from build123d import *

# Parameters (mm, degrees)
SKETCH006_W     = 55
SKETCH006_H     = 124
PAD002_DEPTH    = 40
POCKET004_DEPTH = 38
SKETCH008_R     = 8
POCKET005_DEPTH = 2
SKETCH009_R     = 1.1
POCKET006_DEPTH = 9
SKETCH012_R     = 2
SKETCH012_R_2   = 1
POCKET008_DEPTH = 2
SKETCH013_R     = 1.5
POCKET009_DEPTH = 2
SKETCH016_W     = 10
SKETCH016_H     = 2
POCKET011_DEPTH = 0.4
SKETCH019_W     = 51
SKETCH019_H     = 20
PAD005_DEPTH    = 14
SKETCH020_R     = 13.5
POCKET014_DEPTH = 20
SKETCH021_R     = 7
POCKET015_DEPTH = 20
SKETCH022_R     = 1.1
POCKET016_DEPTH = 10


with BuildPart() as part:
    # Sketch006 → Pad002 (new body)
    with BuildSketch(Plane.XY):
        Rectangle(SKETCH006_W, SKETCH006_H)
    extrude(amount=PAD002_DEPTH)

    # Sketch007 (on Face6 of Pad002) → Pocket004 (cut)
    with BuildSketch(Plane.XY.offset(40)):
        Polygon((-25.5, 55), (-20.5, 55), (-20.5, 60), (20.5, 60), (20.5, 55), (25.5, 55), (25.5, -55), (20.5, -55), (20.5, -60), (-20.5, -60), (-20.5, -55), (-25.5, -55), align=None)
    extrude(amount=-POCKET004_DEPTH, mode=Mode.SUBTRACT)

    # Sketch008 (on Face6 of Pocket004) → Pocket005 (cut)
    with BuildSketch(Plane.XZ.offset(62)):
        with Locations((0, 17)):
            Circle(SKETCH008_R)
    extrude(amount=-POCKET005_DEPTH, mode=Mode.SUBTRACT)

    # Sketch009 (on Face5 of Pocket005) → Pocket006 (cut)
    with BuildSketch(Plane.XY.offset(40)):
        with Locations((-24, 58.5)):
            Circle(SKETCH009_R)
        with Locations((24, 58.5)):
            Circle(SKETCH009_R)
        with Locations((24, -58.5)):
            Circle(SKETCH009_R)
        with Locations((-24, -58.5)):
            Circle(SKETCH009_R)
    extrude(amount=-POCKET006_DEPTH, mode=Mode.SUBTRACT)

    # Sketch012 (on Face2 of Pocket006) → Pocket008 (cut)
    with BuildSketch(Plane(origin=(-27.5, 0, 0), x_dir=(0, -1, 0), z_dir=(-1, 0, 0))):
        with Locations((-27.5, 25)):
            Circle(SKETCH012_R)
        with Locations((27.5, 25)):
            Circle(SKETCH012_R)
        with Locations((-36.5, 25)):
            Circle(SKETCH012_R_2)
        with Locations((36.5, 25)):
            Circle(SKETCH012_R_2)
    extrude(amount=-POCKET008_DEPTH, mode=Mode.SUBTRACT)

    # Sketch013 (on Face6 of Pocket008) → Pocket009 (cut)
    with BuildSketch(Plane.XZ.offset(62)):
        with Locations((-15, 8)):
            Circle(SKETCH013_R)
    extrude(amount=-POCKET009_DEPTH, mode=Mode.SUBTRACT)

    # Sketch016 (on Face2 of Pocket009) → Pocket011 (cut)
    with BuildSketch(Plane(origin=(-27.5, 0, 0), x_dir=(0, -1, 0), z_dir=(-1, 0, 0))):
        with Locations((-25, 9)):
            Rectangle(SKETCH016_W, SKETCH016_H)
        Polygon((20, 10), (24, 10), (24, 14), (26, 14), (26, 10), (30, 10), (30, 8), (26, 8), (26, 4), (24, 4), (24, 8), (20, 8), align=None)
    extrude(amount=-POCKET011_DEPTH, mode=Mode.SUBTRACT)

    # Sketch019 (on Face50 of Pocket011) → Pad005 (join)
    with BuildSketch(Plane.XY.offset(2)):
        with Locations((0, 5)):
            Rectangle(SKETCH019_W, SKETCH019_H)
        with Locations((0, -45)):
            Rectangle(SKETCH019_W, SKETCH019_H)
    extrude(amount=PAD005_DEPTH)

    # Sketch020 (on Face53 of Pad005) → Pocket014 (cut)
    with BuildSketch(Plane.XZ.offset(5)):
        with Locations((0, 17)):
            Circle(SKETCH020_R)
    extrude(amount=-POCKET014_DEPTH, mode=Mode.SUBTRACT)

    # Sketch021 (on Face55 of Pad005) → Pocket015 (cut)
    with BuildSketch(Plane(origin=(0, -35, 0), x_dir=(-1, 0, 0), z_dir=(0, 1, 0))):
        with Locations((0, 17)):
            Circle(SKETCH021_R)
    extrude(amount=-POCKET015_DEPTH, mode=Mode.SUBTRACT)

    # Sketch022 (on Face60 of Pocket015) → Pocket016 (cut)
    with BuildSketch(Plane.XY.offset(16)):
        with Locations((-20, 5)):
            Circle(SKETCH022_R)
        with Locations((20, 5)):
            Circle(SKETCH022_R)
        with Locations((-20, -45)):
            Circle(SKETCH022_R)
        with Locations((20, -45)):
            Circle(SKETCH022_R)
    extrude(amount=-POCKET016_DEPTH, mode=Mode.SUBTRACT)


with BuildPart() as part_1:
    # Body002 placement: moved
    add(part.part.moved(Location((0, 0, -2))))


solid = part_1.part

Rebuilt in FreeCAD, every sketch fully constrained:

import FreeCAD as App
import Part
import Sketcher

V = App.Vector

doc = App.newDocument("Part")
body = doc.addObject("PartDesign::Body", "Body")

# Sketch on XY plane
sketch1 = body.newObject("Sketcher::SketchObject", "Sketch")
sketch1.AttachmentSupport = (doc.getObject("XY_Plane"), [""])
sketch1.MapMode = "FlatFace"
sketch1.addGeometry([
    Part.LineSegment(V(-27.5, 62, 0), V(-27.5, -62, 0)),
    Part.LineSegment(V(-27.5, -62, 0), V(27.5, -62, 0)),
    Part.LineSegment(V(27.5, -62, 0), V(27.5, 62, 0)),
    Part.LineSegment(V(27.5, 62, 0), V(-27.5, 62, 0)),
], False)
sketch1.addConstraint([
    Sketcher.Constraint("Coincident", 0, 2, 1, 1),
    Sketcher.Constraint("Coincident", 1, 2, 2, 1),
    Sketcher.Constraint("Coincident", 2, 2, 3, 1),
    Sketcher.Constraint("Coincident", 3, 2, 0, 1),
    Sketcher.Constraint("Vertical", 0),
    Sketcher.Constraint("Horizontal", 1),
    Sketcher.Constraint("Vertical", 2),
    Sketcher.Constraint("Horizontal", 3),
    Sketcher.Constraint("Symmetric", 0, 2, 2, 2, -1, 1),
    Sketcher.Constraint("DistanceX", 1, 1, 1, 2, 55.0),
    Sketcher.Constraint("DistanceY", 0, 2, 0, 1, 124.0),
])
pad1 = body.newObject("PartDesign::Pad", "Pad")
pad1.Profile = sketch1
pad1.Length = 40

# Sketch on XY plane
sketch2 = body.newObject("Sketcher::SketchObject", "Sketch001")
sketch2.AttachmentSupport = (doc.getObject("XY_Plane"), [""])
sketch2.MapMode = "FlatFace"
sketch2.AttachmentOffset = App.Placement(V(0, 0, 40), App.Rotation())
sketch2.addGeometry([
    Part.LineSegment(V(-20.5, 55, 0), V(-25.5, 55, 0)),  # 0
    Part.LineSegment(V(-25.5, 55, 0), V(-25.5, -55, 0)),  # 1
    Part.LineSegment(V(-25.5, -55, 0), V(-20.5, -55, 0)),  # 2
    Part.LineSegment(V(-20.5, -55, 0), V(-20.5, -60, 0)),  # 3
    Part.LineSegment(V(-20.5, -60, 0), V(20.5, -60, 0)),  # 4
    Part.LineSegment(V(20.5, -60, 0), V(20.5, -55, 0)),  # 5
    Part.LineSegment(V(20.5, -55, 0), V(25.5, -55, 0)),  # 6
    Part.LineSegment(V(25.5, -55, 0), V(25.5, 55, 0)),  # 7
    Part.LineSegment(V(25.5, 55, 0), V(20.5, 55, 0)),  # 8
    Part.LineSegment(V(20.5, 55, 0), V(20.5, 60, 0)),  # 9
    Part.LineSegment(V(20.5, 60, 0), V(-20.5, 60, 0)),  # 10
    Part.LineSegment(V(-20.5, 60, 0), V(-20.5, 55, 0)),  # 11
], False)
sketch2.addConstraint([
    Sketcher.Constraint("Coincident", 0, 2, 1, 1),
    Sketcher.Constraint("Coincident", 1, 2, 2, 1),
    Sketcher.Constraint("Coincident", 2, 2, 3, 1),
    Sketcher.Constraint("Coincident", 3, 2, 4, 1),
    Sketcher.Constraint("Coincident", 4, 2, 5, 1),
    Sketcher.Constraint("Coincident", 5, 2, 6, 1),
    Sketcher.Constraint("Coincident", 6, 2, 7, 1),
    Sketcher.Constraint("Coincident", 7, 2, 8, 1),
    Sketcher.Constraint("Coincident", 8, 2, 9, 1),
    Sketcher.Constraint("Coincident", 9, 2, 10, 1),
    Sketcher.Constraint("Coincident", 10, 2, 11, 1),
    Sketcher.Constraint("Coincident", 11, 2, 0, 1),
    Sketcher.Constraint("Horizontal", 0),
    Sketcher.Constraint("Vertical", 1),
    Sketcher.Constraint("Horizontal", 2),
    Sketcher.Constraint("Vertical", 3),
    Sketcher.Constraint("Horizontal", 4),
    Sketcher.Constraint("Vertical", 5),
    Sketcher.Constraint("Horizontal", 6),
    Sketcher.Constraint("Vertical", 7),
    Sketcher.Constraint("Horizontal", 8),
    Sketcher.Constraint("Vertical", 9),
    Sketcher.Constraint("Horizontal", 10),
    Sketcher.Constraint("Vertical", 11),
    Sketcher.Constraint("Symmetric", 0, 2, 6, 2, -1, 1),
    Sketcher.Constraint("Symmetric", 2, 2, 8, 2, -1, 1),
    Sketcher.Constraint("Symmetric", 4, 2, 10, 2, -1, 1),
    Sketcher.Constraint("Symmetric", 2, 2, 5, 2, -2),
    Sketcher.Constraint("Equal", 8, 3),
    Sketcher.Constraint("DistanceX", 0, 2, 0, 1, 5.0),
    Sketcher.Constraint("DistanceX", 4, 1, 4, 2, 41.0),
    Sketcher.Constraint("DistanceY", 1, 2, 1, 1, 110.0),
])
pocket1 = body.newObject("PartDesign::Pocket", "Pocket")
pocket1.Profile = sketch2
pocket1.Length = 38

# Sketch on XZ plane
sketch3 = body.newObject("Sketcher::SketchObject", "Sketch002")
sketch3.AttachmentSupport = (doc.getObject("XZ_Plane"), [""])
sketch3.MapMode = "FlatFace"
sketch3.AttachmentOffset = App.Placement(V(0, 0, 62), App.Rotation())
sketch3.addGeometry(Part.Circle(V(0, 17, 0), V(0, 0, 1), 8), False)
sketch3.addConstraint([
    Sketcher.Constraint("PointOnObject", 0, 3, -2),
    Sketcher.Constraint("Diameter", 0, 16.0),
    Sketcher.Constraint("DistanceY", -1, 1, 0, 3, 17.0),
])
pocket2 = body.newObject("PartDesign::Pocket", "Pocket001")
pocket2.Profile = sketch3
pocket2.Length = 2

# Sketch on XY plane
sketch4 = body.newObject("Sketcher::SketchObject", "Sketch003")
sketch4.AttachmentSupport = (doc.getObject("XY_Plane"), [""])
sketch4.MapMode = "FlatFace"
sketch4.AttachmentOffset = App.Placement(V(0, 0, 40), App.Rotation())
sketch4.addGeometry([
    Part.Circle(V(-24, 58.5, 0), V(0, 0, 1), 1.1),
    Part.Circle(V(24, 58.5, 0), V(0, 0, 1), 1.1),
    Part.Circle(V(24, -58.5, 0), V(0, 0, 1), 1.1),
    Part.Circle(V(-24, -58.5, 0), V(0, 0, 1), 1.1),
], False)
sketch4.addConstraint([
    Sketcher.Constraint("Equal", 0, 1),
    Sketcher.Constraint("Equal", 1, 2),
    Sketcher.Constraint("Equal", 2, 3),
    Sketcher.Constraint("Symmetric", 0, 3, 2, 3, -1, 1),
    Sketcher.Constraint("Symmetric", 1, 3, 3, 3, -1, 1),
    Sketcher.Constraint("Symmetric", 0, 3, 1, 3, -2),
    Sketcher.Constraint("Diameter", 0, 2.2),
    Sketcher.Constraint("DistanceX", 0, 3, -1, 1, 24.0),
    Sketcher.Constraint("DistanceY", 2, 3, 1, 3, 117.0),
])
pocket3 = body.newObject("PartDesign::Pocket", "Pocket002")
pocket3.Profile = sketch4
pocket3.Length = 9

# Sketch on YZ plane
sketch5 = body.newObject("Sketcher::SketchObject", "Sketch004")
sketch5.AttachmentSupport = (doc.getObject("YZ_Plane"), [""])
sketch5.MapMode = "FlatFace"
sketch5.AttachmentOffset = App.Placement(V(0, 0, -27.5), App.Rotation())
sketch5.addGeometry([
    Part.Circle(V(27.5, 25, 0), V(0, 0, 1), 2),
    Part.Circle(V(-27.5, 25, 0), V(0, 0, 1), 2),
    Part.Circle(V(36.5, 25, 0), V(0, 0, 1), 1),
    Part.Circle(V(-36.5, 25, 0), V(0, 0, 1), 1),
], False)
sketch5.addConstraint([
    Sketcher.Constraint("Equal", 0, 1),
    Sketcher.Constraint("Equal", 2, 3),
    Sketcher.Constraint("Symmetric", 0, 3, 1, 3, -2),
    Sketcher.Constraint("Symmetric", 2, 3, 3, 3, -2),
    Sketcher.Constraint("Horizontal", 1, 3, 2, 3),
    Sketcher.Constraint("Diameter", 0, 4.0),
    Sketcher.Constraint("Diameter", 2, 2.0),
    Sketcher.Constraint("DistanceY", -1, 1, 0, 3, 25.0),
    Sketcher.Constraint("DistanceX", 1, 3, 0, 3, 55.0),
    Sketcher.Constraint("DistanceX", 0, 3, 2, 3, 9.0),
])
pocket4 = body.newObject("PartDesign::Pocket", "Pocket003")
pocket4.Profile = sketch5
pocket4.Length = 2
pocket4.Reversed = True

# Sketch on XZ plane
sketch6 = body.newObject("Sketcher::SketchObject", "Sketch005")
sketch6.AttachmentSupport = (doc.getObject("XZ_Plane"), [""])
sketch6.MapMode = "FlatFace"
sketch6.AttachmentOffset = App.Placement(V(0, 0, 62), App.Rotation())
sketch6.addGeometry(Part.Circle(V(-15, 8, 0), V(0, 0, 1), 1.5), False)
sketch6.addConstraint([
    Sketcher.Constraint("Diameter", 0, 3.0),
    Sketcher.Constraint("DistanceX", 0, 3, -1, 1, 15.0),
    Sketcher.Constraint("DistanceY", -1, 1, 0, 3, 8.0),
])
pocket5 = body.newObject("PartDesign::Pocket", "Pocket004")
pocket5.Profile = sketch6
pocket5.Length = 2

# Sketch on YZ plane
sketch7 = body.newObject("Sketcher::SketchObject", "Sketch006")
sketch7.AttachmentSupport = (doc.getObject("YZ_Plane"), [""])
sketch7.MapMode = "FlatFace"
sketch7.AttachmentOffset = App.Placement(V(0, 0, -27.5), App.Rotation())
sketch7.addGeometry([
    Part.LineSegment(V(30, 10, 0), V(30, 8, 0)),  # 0
    Part.LineSegment(V(30, 8, 0), V(20, 8, 0)),  # 1
    Part.LineSegment(V(20, 8, 0), V(20, 10, 0)),  # 2
    Part.LineSegment(V(20, 10, 0), V(30, 10, 0)),  # 3
    Part.LineSegment(V(-24, 10, 0), V(-20, 10, 0)),  # 4
    Part.LineSegment(V(-20, 10, 0), V(-20, 8, 0)),  # 5
    Part.LineSegment(V(-20, 8, 0), V(-24, 8, 0)),  # 6
    Part.LineSegment(V(-24, 8, 0), V(-24, 4, 0)),  # 7
    Part.LineSegment(V(-24, 4, 0), V(-26, 4, 0)),  # 8
    Part.LineSegment(V(-26, 4, 0), V(-26, 8, 0)),  # 9
    Part.LineSegment(V(-26, 8, 0), V(-30, 8, 0)),  # 10
    Part.LineSegment(V(-30, 8, 0), V(-30, 10, 0)),  # 11
    Part.LineSegment(V(-30, 10, 0), V(-26, 10, 0)),  # 12
    Part.LineSegment(V(-26, 10, 0), V(-26, 14, 0)),  # 13
    Part.LineSegment(V(-26, 14, 0), V(-24, 14, 0)),  # 14
    Part.LineSegment(V(-24, 14, 0), V(-24, 10, 0)),  # 15
], False)
sketch7.addConstraint([
    Sketcher.Constraint("Coincident", 0, 2, 1, 1),
    Sketcher.Constraint("Coincident", 1, 2, 2, 1),
    Sketcher.Constraint("Coincident", 2, 2, 3, 1),
    Sketcher.Constraint("Coincident", 3, 2, 0, 1),
    Sketcher.Constraint("Coincident", 4, 2, 5, 1),
    Sketcher.Constraint("Coincident", 5, 2, 6, 1),
    Sketcher.Constraint("Coincident", 6, 2, 7, 1),
    Sketcher.Constraint("Coincident", 7, 2, 8, 1),
    Sketcher.Constraint("Coincident", 8, 2, 9, 1),
    Sketcher.Constraint("Coincident", 9, 2, 10, 1),
    Sketcher.Constraint("Coincident", 10, 2, 11, 1),
    Sketcher.Constraint("Coincident", 11, 2, 12, 1),
    Sketcher.Constraint("Coincident", 12, 2, 13, 1),
    Sketcher.Constraint("Coincident", 13, 2, 14, 1),
    Sketcher.Constraint("Coincident", 14, 2, 15, 1),
    Sketcher.Constraint("Coincident", 15, 2, 4, 1),
    Sketcher.Constraint("Vertical", 0),
    Sketcher.Constraint("Horizontal", 1),
    Sketcher.Constraint("Vertical", 2),
    Sketcher.Constraint("Horizontal", 3),
    Sketcher.Constraint("Horizontal", 4),
    Sketcher.Constraint("Vertical", 5),
    Sketcher.Constraint("Horizontal", 6),
    Sketcher.Constraint("Vertical", 7),
    Sketcher.Constraint("Horizontal", 8),
    Sketcher.Constraint("Vertical", 9),
    Sketcher.Constraint("Horizontal", 10),
    Sketcher.Constraint("Vertical", 11),
    Sketcher.Constraint("Horizontal", 12),
    Sketcher.Constraint("Vertical", 13),
    Sketcher.Constraint("Horizontal", 14),
    Sketcher.Constraint("Vertical", 15),
    Sketcher.Constraint("Symmetric", 2, 2, 4, 2, -2),
    Sketcher.Constraint("Symmetric", 0, 2, 10, 2, -2),
    Sketcher.Constraint("Horizontal", 1, 2, 5, 2),
    Sketcher.Constraint("Horizontal", 4, 2, 11, 2),
    Sketcher.Constraint("Vertical", 9, 2, 12, 2),
    Sketcher.Constraint("Vertical", 7, 2, 14, 2),
    Sketcher.Constraint("Equal", 6, 10),
    Sketcher.Constraint("Equal", 14, 0),
    Sketcher.Constraint("Equal", 12, 7),
    Sketcher.Constraint("Equal", 9, 13),
    Sketcher.Constraint("DistanceX", 1, 2, 1, 1, 10.0),
    Sketcher.Constraint("DistanceX", 4, 1, 4, 2, 4.0),
    Sketcher.Constraint("DistanceX", -1, 1, 0, 2, 30.0),
    Sketcher.Constraint("DistanceY", -1, 1, 0, 2, 8.0),
])
pocket6 = body.newObject("PartDesign::Pocket", "Pocket005")
pocket6.Profile = sketch7
pocket6.Length = 0.4
pocket6.Reversed = True

# Sketch on XY plane
sketch8 = body.newObject("Sketcher::SketchObject", "Sketch007")
sketch8.AttachmentSupport = (doc.getObject("XY_Plane"), [""])
sketch8.MapMode = "FlatFace"
sketch8.AttachmentOffset = App.Placement(V(0, 0, 2), App.Rotation())
sketch8.addGeometry([
    Part.LineSegment(V(-25.5, 15, 0), V(-25.5, -5, 0)),  # 0
    Part.LineSegment(V(-25.5, -5, 0), V(25.5, -5, 0)),  # 1
    Part.LineSegment(V(25.5, -5, 0), V(25.5, 15, 0)),  # 2
    Part.LineSegment(V(25.5, 15, 0), V(-25.5, 15, 0)),  # 3
    Part.LineSegment(V(-25.5, -35, 0), V(-25.5, -55, 0)),  # 4
    Part.LineSegment(V(-25.5, -55, 0), V(25.5, -55, 0)),  # 5
    Part.LineSegment(V(25.5, -55, 0), V(25.5, -35, 0)),  # 6
    Part.LineSegment(V(25.5, -35, 0), V(-25.5, -35, 0)),  # 7
], False)
sketch8.addConstraint([
    Sketcher.Constraint("Coincident", 0, 2, 1, 1),
    Sketcher.Constraint("Coincident", 1, 2, 2, 1),
    Sketcher.Constraint("Coincident", 2, 2, 3, 1),
    Sketcher.Constraint("Coincident", 3, 2, 0, 1),
    Sketcher.Constraint("Coincident", 4, 2, 5, 1),
    Sketcher.Constraint("Coincident", 5, 2, 6, 1),
    Sketcher.Constraint("Coincident", 6, 2, 7, 1),
    Sketcher.Constraint("Coincident", 7, 2, 4, 1),
    Sketcher.Constraint("Vertical", 0),
    Sketcher.Constraint("Horizontal", 1),
    Sketcher.Constraint("Vertical", 2),
    Sketcher.Constraint("Horizontal", 3),
    Sketcher.Constraint("Vertical", 4),
    Sketcher.Constraint("Horizontal", 5),
    Sketcher.Constraint("Vertical", 6),
    Sketcher.Constraint("Horizontal", 7),
    Sketcher.Constraint("Vertical", 3, 2, 4, 2),
    Sketcher.Constraint("Vertical", 2, 2, 5, 2),
    Sketcher.Constraint("Equal", 2, 4),
    Sketcher.Constraint("DistanceX", 1, 1, 1, 2, 51.0),
    Sketcher.Constraint("DistanceY", 0, 2, 0, 1, 20.0),
    Sketcher.Constraint("DistanceY", 0, 2, -1, 1, 5.0),
    Sketcher.Constraint("DistanceY", 4, 2, -1, 1, 55.0),
    Sketcher.Constraint("DistanceX", 0, 2, -1, 1, 25.5),
])
pad2 = body.newObject("PartDesign::Pad", "Pad001")
pad2.Profile = sketch8
pad2.Length = 14

# Sketch on XZ plane
sketch9 = body.newObject("Sketcher::SketchObject", "Sketch008")
sketch9.AttachmentSupport = (doc.getObject("XZ_Plane"), [""])
sketch9.MapMode = "FlatFace"
sketch9.AttachmentOffset = App.Placement(V(0, 0, 5), App.Rotation())
sketch9.addGeometry(Part.Circle(V(0, 17, 0), V(0, 0, 1), 13.5), False)
sketch9.addConstraint([
    Sketcher.Constraint("PointOnObject", 0, 3, -2),
    Sketcher.Constraint("Diameter", 0, 27.0),
    Sketcher.Constraint("DistanceY", -1, 1, 0, 3, 17.0),
])
pocket7 = body.newObject("PartDesign::Pocket", "Pocket006")
pocket7.Profile = sketch9
pocket7.Length = 20

# Sketch on XZ plane
sketch10 = body.newObject("Sketcher::SketchObject", "Sketch009")
sketch10.AttachmentSupport = (doc.getObject("XZ_Plane"), [""])
sketch10.MapMode = "FlatFace"
sketch10.AttachmentOffset = App.Placement(V(0, 0, 35), App.Rotation())
sketch10.addGeometry(Part.Circle(V(0, 17, 0), V(0, 0, 1), 7), False)
sketch10.addConstraint([
    Sketcher.Constraint("PointOnObject", 0, 3, -2),
    Sketcher.Constraint("Diameter", 0, 14.0),
    Sketcher.Constraint("DistanceY", -1, 1, 0, 3, 17.0),
])
pocket8 = body.newObject("PartDesign::Pocket", "Pocket007")
pocket8.Profile = sketch10
pocket8.Length = 20
pocket8.Reversed = True

# Sketch on XY plane
sketch11 = body.newObject("Sketcher::SketchObject", "Sketch010")
sketch11.AttachmentSupport = (doc.getObject("XY_Plane"), [""])
sketch11.MapMode = "FlatFace"
sketch11.AttachmentOffset = App.Placement(V(0, 0, 16), App.Rotation())
sketch11.addGeometry([
    Part.Circle(V(-20, 5, 0), V(0, 0, 1), 1.1),
    Part.Circle(V(20, 5, 0), V(0, 0, 1), 1.1),
    Part.Circle(V(-20, -45, 0), V(0, 0, 1), 1.1),
    Part.Circle(V(20, -45, 0), V(0, 0, 1), 1.1),
], False)
sketch11.addConstraint([
    Sketcher.Constraint("Equal", 0, 1),
    Sketcher.Constraint("Equal", 1, 2),
    Sketcher.Constraint("Equal", 2, 3),
    Sketcher.Constraint("Symmetric", 0, 3, 1, 3, -2),
    Sketcher.Constraint("Symmetric", 2, 3, 3, 3, -2),
    Sketcher.Constraint("Vertical", 0, 3, 2, 3),
    Sketcher.Constraint("Diameter", 0, 2.2),
    Sketcher.Constraint("DistanceX", 0, 3, -1, 1, 20.0),
    Sketcher.Constraint("DistanceY", -1, 1, 0, 3, 5.0),
    Sketcher.Constraint("DistanceY", 2, 3, -1, 1, 45.0),
])
pocket9 = body.newObject("PartDesign::Pocket", "Pocket008")
pocket9.Profile = sketch11
pocket9.Length = 10
body2 = doc.addObject("PartDesign::Body", "Body001")
doc.recompute()

body.Placement = App.Placement(V(0, 0, -2), App.Rotation(V(0, 0, 1), 0))
boolean = body2.newObject("PartDesign::Boolean", "Boolean")
boolean.Type = "Fuse"
boolean.addObjects([body])

doc.recompute()
